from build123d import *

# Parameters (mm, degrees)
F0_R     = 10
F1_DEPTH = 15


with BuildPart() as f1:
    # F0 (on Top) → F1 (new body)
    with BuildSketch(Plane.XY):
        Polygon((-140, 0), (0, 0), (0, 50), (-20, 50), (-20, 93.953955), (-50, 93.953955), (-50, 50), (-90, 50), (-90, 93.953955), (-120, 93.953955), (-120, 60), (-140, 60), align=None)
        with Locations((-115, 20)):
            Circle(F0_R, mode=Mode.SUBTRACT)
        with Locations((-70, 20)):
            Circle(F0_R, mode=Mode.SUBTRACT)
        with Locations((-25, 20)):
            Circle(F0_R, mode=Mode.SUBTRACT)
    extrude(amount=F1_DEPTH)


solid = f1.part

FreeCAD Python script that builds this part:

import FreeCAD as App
import Part
import Sketcher
from FreeCAD import Vector
Q = App.Units.Quantity


def add_polygon(sketch, points):
    """Adds a closed chain of lines whose ends are joined by coincident constraints."""
    first, n = sketch.GeometryCount, len(points)
    for a, b in zip(points, points[1:] + points[:1]):
        sketch.addGeometry(Part.LineSegment(App.Vector(*a, 0), App.Vector(*b, 0)), False)
    for i in range(n):
        sketch.addConstraint(Sketcher.Constraint("Coincident", first + i, 2, first + (i + 1) % n, 1))

doc = App.newDocument("Part")
params = doc.addObject("Spreadsheet::Sheet", "Params")
for row, (alias, value) in enumerate([
    ("sketch1_diameter", "20 mm"),
    ("sketch1_width", "140 mm"),
    ("sketch1_width2", "20 mm"),
    ("sketch1_width3", "30 mm"),
    ("sketch1_height", "50 mm"),
    ("pad1_length", "15 mm"),
], start=1):
    params.set(f"A{row}", alias)
    params.set(f"B{row}", "=" + value)
    params.setAlias(f"B{row}", alias)

body = doc.addObject("PartDesign::Body", "Body")

sketch1 = body.newObject("Sketcher::SketchObject", "Sketch")
sketch1.AttachmentSupport = (doc.getObject("XY_Plane"), [""])
sketch1.MapMode = "FlatFace"
add_polygon(sketch1, [(-140, 0), (0, 0), (0, 50), (-20, 50), (-20, 94), (-50, 94), (-50, 50), (-90, 50), (-90, 94), (-120, 94), (-120, 60), (-140, 60)])
sketch1.addGeometry(Part.Circle(Vector(-115, 20, 0), Vector(0, 0, 1), 10), False)
sketch1.addGeometry(Part.Circle(Vector(-70, 20, 0), Vector(0, 0, 1), 10), False)
sketch1.addGeometry(Part.Circle(Vector(-25, 20, 0), Vector(0, 0, 1), 10), False)
sketch1.addConstraint([
    Sketcher.Constraint("Horizontal", 0),
    Sketcher.Constraint("Vertical", 1),
    Sketcher.Constraint("Horizontal", 2),
    Sketcher.Constraint("Vertical", 3),
    Sketcher.Constraint("Horizontal", 4),
    Sketcher.Constraint("Vertical", 5),
    Sketcher.Constraint("Horizontal", 6),
    Sketcher.Constraint("Vertical", 7),
    Sketcher.Constraint("Horizontal", 8),
    Sketcher.Constraint("Vertical", 9),
    Sketcher.Constraint("Horizontal", 10),
    Sketcher.Constraint("Vertical", 11),
    Sketcher.Constraint("Coincident", 0, 2, -1, 1),
    Sketcher.Constraint("Equal", 12, 13),
    Sketcher.Constraint("Equal", 13, 14),
    Sketcher.Constraint("Horizontal", 12, 3, 13, 3),
    Sketcher.Constraint("Horizontal", 13, 3, 14, 3),
    Sketcher.Constraint("Horizontal", 2, 2, 5, 2),
    Sketcher.Constraint("Horizontal", 4, 2, 7, 2),
    Sketcher.Constraint("Equal", 4, 8),
    Sketcher.Constraint("Equal", 2, 10),
    Sketcher.Constraint("Diameter", 12, Q("20 mm")),
    Sketcher.Constraint("DistanceX", 0, 1, 0, 2, Q("140 mm")),
    Sketcher.Constraint("DistanceX", 2, 2, 2, 1, Q("20 mm")),
    Sketcher.Constraint("DistanceX", 4, 2, 4, 1, Q("30 mm")),
    Sketcher.Constraint("DistanceY", 1, 1, 1, 2, Q("50 mm")),
    Sketcher.Constraint("DistanceY", 11, 2, 11, 1, Q("60 mm")),
    Sketcher.Constraint("DistanceX", 12, 3, -1, 1, Q("115 mm")),
    Sketcher.Constraint("DistanceY", -1, 1, 12, 3, Q("20 mm")),
    Sketcher.Constraint("DistanceX", 13, 3, -1, 1, Q("70 mm")),
    Sketcher.Constraint("DistanceX", 14, 3, -1, 1, Q("25 mm")),
    Sketcher.Constraint("DistanceY", 3, 1, 3, 2, Q("43.953955 mm")),
])
sketch1.setExpression("Constraints[33]", "Params.sketch1_diameter")
sketch1.setExpression("Constraints[34]", "Params.sketch1_width")
sketch1.setExpression("Constraints[35]", "Params.sketch1_width2")
sketch1.setExpression("Constraints[36]", "Params.sketch1_width3")
sketch1.setExpression("Constraints[37]", "Params.sketch1_height")
pad1 = body.newObject("PartDesign::Pad", "Pad")
pad1.Profile = sketch1
pad1.setExpression("Length", "Params.pad1_length")

doc.recompute()
